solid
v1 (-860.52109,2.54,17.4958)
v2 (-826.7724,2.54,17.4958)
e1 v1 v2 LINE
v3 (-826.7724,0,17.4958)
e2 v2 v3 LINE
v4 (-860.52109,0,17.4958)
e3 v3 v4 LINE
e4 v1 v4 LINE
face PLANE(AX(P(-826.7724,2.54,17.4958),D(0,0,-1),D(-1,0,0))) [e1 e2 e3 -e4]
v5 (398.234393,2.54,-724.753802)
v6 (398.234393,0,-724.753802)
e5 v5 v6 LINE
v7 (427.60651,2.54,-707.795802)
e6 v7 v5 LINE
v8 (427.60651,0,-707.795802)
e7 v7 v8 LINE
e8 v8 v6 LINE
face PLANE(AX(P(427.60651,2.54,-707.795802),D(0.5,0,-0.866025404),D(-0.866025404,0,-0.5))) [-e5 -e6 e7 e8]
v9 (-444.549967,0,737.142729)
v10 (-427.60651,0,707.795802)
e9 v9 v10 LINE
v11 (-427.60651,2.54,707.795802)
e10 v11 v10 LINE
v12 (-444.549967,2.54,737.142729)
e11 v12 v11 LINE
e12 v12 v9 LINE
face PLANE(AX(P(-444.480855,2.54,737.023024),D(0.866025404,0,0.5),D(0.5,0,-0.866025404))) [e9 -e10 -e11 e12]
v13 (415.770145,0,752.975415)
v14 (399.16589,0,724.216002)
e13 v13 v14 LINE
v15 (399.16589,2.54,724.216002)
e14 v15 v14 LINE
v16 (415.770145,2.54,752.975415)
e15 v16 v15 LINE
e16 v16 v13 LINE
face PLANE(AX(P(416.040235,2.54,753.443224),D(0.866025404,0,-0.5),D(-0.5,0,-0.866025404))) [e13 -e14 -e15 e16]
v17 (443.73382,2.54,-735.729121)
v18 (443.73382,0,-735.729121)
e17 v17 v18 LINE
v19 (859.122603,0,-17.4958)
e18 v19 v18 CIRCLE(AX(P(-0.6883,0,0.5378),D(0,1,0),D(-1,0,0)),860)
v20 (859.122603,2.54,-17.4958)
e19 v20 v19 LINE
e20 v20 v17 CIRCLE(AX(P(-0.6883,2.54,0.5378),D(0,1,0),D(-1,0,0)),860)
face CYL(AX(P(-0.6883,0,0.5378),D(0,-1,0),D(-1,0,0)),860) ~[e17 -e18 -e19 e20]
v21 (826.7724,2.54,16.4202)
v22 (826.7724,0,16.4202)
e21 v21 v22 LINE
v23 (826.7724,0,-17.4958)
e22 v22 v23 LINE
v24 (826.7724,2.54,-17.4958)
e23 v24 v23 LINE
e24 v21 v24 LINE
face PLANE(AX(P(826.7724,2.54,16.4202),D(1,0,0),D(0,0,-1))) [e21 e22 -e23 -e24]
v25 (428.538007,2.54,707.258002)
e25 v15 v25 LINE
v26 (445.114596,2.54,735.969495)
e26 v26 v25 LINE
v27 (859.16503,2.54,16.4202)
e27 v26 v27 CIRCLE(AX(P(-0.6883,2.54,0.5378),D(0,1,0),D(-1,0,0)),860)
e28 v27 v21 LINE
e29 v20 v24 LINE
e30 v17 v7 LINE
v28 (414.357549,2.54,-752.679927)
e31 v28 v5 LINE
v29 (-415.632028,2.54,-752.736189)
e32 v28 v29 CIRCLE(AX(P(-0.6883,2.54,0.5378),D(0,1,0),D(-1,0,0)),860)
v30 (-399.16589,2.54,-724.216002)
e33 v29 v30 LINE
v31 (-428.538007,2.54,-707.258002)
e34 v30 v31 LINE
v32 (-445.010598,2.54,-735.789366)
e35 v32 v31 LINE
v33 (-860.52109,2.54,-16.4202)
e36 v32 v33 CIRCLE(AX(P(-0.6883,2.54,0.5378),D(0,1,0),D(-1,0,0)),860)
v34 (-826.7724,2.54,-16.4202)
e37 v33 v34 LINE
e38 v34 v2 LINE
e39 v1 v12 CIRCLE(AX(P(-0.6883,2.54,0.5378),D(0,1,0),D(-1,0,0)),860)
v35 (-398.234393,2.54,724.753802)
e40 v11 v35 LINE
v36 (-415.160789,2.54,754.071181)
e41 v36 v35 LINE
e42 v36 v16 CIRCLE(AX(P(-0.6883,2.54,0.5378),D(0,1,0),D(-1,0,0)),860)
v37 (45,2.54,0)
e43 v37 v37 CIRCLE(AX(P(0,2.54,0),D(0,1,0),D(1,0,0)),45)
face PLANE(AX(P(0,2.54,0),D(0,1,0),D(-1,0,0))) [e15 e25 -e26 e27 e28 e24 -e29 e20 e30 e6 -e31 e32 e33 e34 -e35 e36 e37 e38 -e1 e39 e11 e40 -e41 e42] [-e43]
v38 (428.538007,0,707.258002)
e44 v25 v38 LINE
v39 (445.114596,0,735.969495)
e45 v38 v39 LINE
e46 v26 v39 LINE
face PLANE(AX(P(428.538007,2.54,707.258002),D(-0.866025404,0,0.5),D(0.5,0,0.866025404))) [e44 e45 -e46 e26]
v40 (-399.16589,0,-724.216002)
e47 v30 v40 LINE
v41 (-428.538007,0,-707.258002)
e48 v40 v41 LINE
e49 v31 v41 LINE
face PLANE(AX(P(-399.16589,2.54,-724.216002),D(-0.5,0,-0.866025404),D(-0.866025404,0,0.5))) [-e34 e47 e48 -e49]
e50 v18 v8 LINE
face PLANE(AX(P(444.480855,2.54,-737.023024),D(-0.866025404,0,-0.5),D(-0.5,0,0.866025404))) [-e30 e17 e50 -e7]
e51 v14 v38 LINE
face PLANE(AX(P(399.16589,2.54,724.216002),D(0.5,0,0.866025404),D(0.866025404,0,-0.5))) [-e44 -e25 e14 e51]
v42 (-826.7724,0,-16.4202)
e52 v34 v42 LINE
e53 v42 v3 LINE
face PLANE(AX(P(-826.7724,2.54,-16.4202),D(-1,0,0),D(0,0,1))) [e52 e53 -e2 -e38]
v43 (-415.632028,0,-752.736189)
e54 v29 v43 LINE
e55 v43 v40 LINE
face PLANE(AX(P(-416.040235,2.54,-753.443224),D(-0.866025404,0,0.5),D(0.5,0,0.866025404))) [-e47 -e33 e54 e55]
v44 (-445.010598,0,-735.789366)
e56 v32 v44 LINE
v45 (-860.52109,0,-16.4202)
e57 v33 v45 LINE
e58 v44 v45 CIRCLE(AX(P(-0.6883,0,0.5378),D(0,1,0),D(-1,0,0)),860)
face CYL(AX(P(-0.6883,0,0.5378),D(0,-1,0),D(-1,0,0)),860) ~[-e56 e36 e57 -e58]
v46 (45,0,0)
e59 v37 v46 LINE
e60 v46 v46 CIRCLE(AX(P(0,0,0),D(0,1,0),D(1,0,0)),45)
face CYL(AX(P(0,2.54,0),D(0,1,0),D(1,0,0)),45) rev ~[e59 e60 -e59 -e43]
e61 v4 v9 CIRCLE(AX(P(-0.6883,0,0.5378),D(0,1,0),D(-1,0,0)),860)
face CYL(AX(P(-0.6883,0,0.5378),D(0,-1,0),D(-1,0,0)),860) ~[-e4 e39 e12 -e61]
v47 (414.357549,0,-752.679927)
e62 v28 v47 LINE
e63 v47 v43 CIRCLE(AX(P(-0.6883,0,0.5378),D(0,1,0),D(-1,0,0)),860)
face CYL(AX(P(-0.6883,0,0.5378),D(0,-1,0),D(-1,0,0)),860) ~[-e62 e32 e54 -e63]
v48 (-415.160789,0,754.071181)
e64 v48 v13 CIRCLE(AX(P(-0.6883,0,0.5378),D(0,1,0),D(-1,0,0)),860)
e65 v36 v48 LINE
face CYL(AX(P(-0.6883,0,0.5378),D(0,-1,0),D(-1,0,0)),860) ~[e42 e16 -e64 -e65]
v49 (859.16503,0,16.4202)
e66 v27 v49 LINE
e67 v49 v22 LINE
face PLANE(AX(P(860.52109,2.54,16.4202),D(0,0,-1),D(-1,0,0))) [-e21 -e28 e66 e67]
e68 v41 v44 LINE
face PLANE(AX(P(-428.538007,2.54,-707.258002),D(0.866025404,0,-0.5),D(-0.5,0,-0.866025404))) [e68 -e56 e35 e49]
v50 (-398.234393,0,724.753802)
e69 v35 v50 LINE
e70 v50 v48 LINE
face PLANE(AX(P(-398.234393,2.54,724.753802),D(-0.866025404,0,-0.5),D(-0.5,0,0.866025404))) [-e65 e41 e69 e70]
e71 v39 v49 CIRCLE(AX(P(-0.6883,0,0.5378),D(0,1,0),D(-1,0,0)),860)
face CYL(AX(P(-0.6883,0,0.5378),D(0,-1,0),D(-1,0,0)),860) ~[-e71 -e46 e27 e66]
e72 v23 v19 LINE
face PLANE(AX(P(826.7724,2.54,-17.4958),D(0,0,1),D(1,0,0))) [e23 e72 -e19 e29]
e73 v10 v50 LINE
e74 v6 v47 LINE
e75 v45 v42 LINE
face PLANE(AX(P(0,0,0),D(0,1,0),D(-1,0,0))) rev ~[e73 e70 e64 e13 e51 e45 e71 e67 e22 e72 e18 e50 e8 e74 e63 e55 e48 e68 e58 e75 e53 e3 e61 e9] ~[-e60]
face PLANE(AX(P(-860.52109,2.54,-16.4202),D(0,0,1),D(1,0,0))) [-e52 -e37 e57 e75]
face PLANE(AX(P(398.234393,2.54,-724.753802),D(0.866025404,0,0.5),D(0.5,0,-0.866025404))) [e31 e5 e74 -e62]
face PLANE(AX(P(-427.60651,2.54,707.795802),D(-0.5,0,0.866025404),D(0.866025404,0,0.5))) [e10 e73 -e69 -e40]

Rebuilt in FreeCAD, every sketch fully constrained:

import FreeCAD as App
import Part
import Sketcher

V = App.Vector
Q = App.Units.Quantity


def add_polygon(sketch, points):
    """Adds a closed chain of lines whose ends are joined by coincident constraints."""
    first, n = sketch.GeometryCount, len(points)
    for a, b in zip(points, points[1:] + points[:1]):
        sketch.addGeometry(Part.LineSegment(App.Vector(*a, 0), App.Vector(*b, 0)), False)
    for i in range(n):
        sketch.addConstraint(Sketcher.Constraint("Coincident", first + i, 2, first + (i + 1) % n, 1))

doc = App.newDocument("Part")
params = doc.addObject("Spreadsheet::Sheet", "Params")
for row, (alias, value) in enumerate([
    ("pad1_length", "0.1 in"),
    ("pocket1_length", "1 in"),
    ("pocket2_length", "0.3937008 in"),
], start=1):
    params.set(f"A{row}", alias)
    params.set(f"B{row}", "=" + value)
    params.setAlias(f"B{row}", alias)

body = doc.addObject("PartDesign::Body", "Body")

sketch1 = body.newObject("Sketcher::SketchObject", "Sketch")
sketch1.AttachmentSupport = (doc.getObject("XZ_Plane"), [""])
sketch1.MapMode = "FlatFace"
sketch1.addGeometry(Part.Circle(V(-1, 1, 0), V(0, 0, 1), 860), False)
sketch1.addConstraint([
    Sketcher.Constraint("Diameter", 0, 1720.0),
    Sketcher.Constraint("DistanceX", 0, 3, -1, 1, Q("0.0271 in")),
    Sketcher.Constraint("DistanceY", -1, 1, 0, 3, 0.5378),
])
pad1 = body.newObject("PartDesign::Pad", "Pad")
pad1.Profile = sketch1
pad1.setExpression("Length", "Params.pad1_length")
pad1.Reversed = True

sketch2 = body.newObject("Sketcher::SketchObject", "Sketch001")
sketch2.AttachmentSupport = (doc.getObject("XZ_Plane"), [""])
sketch2.MapMode = "FlatFace"
sketch2.AttachmentOffset = App.Placement(V(0, 0, -0.1 * 25.4), App.Rotation())
sketch2.addGeometry(Part.Circle(V(0, 0, 0), V(0, 0, 1), 45), False)
sketch2.addConstraint([
    Sketcher.Constraint("Coincident", 0, 3, -1, 1),
    Sketcher.Constraint("Diameter", 0, Q("3.5433 in")),
])
pocket1 = body.newObject("PartDesign::Pocket", "Pocket")
pocket1.Profile = sketch2
pocket1.setExpression("Length", "Params.pocket1_length")
pocket1.Reversed = True

sketch3 = body.newObject("Sketcher::SketchObject", "Sketch002")
sketch3.AttachmentSupport = (doc.getObject("XZ_Plane"), [""])
sketch3.MapMode = "FlatFace"
sketch3.AttachmentOffset = App.Placement(V(0, 0, -0.1 * 25.4), App.Rotation())
add_polygon(sketch3, [(-827, -16), (-895, -16), (-895, 17), (-827, 17)])
sketch3.addConstraint([
    Sketcher.Constraint("Horizontal", 0),
    Sketcher.Constraint("Vertical", 1),
    Sketcher.Constraint("Horizontal", 2),
    Sketcher.Constraint("Vertical", 3),
    Sketcher.Constraint("DistanceX", 0, 2, 0, 1, 67.8318),
    Sketcher.Constraint("DistanceY", 1, 1, 1, 2, 33.916),
    Sketcher.Constraint("DistanceY", -1, 1, 1, 2, Q("0.6888 in")),
    Sketcher.Constraint("DistanceX", 2, 2, -1, 1, Q("32.5501 in")),
])
pocket2 = body.newObject("PartDesign::Pocket", "Pocket001")
pocket2.Profile = sketch3
pocket2.setExpression("Length", "Params.pocket2_length")
pocket2.Reversed = True
doc.recompute()

polarpattern = body.newObject("PartDesign::PolarPattern", "PolarPattern")
polarpattern.Originals = [pocket2]
polarpattern.Axis = (doc.getObject("Y_Axis"), [""])
polarpattern.Angle = 360
polarpattern.Occurrences = 6
body.Tip = polarpattern

doc.recompute()
